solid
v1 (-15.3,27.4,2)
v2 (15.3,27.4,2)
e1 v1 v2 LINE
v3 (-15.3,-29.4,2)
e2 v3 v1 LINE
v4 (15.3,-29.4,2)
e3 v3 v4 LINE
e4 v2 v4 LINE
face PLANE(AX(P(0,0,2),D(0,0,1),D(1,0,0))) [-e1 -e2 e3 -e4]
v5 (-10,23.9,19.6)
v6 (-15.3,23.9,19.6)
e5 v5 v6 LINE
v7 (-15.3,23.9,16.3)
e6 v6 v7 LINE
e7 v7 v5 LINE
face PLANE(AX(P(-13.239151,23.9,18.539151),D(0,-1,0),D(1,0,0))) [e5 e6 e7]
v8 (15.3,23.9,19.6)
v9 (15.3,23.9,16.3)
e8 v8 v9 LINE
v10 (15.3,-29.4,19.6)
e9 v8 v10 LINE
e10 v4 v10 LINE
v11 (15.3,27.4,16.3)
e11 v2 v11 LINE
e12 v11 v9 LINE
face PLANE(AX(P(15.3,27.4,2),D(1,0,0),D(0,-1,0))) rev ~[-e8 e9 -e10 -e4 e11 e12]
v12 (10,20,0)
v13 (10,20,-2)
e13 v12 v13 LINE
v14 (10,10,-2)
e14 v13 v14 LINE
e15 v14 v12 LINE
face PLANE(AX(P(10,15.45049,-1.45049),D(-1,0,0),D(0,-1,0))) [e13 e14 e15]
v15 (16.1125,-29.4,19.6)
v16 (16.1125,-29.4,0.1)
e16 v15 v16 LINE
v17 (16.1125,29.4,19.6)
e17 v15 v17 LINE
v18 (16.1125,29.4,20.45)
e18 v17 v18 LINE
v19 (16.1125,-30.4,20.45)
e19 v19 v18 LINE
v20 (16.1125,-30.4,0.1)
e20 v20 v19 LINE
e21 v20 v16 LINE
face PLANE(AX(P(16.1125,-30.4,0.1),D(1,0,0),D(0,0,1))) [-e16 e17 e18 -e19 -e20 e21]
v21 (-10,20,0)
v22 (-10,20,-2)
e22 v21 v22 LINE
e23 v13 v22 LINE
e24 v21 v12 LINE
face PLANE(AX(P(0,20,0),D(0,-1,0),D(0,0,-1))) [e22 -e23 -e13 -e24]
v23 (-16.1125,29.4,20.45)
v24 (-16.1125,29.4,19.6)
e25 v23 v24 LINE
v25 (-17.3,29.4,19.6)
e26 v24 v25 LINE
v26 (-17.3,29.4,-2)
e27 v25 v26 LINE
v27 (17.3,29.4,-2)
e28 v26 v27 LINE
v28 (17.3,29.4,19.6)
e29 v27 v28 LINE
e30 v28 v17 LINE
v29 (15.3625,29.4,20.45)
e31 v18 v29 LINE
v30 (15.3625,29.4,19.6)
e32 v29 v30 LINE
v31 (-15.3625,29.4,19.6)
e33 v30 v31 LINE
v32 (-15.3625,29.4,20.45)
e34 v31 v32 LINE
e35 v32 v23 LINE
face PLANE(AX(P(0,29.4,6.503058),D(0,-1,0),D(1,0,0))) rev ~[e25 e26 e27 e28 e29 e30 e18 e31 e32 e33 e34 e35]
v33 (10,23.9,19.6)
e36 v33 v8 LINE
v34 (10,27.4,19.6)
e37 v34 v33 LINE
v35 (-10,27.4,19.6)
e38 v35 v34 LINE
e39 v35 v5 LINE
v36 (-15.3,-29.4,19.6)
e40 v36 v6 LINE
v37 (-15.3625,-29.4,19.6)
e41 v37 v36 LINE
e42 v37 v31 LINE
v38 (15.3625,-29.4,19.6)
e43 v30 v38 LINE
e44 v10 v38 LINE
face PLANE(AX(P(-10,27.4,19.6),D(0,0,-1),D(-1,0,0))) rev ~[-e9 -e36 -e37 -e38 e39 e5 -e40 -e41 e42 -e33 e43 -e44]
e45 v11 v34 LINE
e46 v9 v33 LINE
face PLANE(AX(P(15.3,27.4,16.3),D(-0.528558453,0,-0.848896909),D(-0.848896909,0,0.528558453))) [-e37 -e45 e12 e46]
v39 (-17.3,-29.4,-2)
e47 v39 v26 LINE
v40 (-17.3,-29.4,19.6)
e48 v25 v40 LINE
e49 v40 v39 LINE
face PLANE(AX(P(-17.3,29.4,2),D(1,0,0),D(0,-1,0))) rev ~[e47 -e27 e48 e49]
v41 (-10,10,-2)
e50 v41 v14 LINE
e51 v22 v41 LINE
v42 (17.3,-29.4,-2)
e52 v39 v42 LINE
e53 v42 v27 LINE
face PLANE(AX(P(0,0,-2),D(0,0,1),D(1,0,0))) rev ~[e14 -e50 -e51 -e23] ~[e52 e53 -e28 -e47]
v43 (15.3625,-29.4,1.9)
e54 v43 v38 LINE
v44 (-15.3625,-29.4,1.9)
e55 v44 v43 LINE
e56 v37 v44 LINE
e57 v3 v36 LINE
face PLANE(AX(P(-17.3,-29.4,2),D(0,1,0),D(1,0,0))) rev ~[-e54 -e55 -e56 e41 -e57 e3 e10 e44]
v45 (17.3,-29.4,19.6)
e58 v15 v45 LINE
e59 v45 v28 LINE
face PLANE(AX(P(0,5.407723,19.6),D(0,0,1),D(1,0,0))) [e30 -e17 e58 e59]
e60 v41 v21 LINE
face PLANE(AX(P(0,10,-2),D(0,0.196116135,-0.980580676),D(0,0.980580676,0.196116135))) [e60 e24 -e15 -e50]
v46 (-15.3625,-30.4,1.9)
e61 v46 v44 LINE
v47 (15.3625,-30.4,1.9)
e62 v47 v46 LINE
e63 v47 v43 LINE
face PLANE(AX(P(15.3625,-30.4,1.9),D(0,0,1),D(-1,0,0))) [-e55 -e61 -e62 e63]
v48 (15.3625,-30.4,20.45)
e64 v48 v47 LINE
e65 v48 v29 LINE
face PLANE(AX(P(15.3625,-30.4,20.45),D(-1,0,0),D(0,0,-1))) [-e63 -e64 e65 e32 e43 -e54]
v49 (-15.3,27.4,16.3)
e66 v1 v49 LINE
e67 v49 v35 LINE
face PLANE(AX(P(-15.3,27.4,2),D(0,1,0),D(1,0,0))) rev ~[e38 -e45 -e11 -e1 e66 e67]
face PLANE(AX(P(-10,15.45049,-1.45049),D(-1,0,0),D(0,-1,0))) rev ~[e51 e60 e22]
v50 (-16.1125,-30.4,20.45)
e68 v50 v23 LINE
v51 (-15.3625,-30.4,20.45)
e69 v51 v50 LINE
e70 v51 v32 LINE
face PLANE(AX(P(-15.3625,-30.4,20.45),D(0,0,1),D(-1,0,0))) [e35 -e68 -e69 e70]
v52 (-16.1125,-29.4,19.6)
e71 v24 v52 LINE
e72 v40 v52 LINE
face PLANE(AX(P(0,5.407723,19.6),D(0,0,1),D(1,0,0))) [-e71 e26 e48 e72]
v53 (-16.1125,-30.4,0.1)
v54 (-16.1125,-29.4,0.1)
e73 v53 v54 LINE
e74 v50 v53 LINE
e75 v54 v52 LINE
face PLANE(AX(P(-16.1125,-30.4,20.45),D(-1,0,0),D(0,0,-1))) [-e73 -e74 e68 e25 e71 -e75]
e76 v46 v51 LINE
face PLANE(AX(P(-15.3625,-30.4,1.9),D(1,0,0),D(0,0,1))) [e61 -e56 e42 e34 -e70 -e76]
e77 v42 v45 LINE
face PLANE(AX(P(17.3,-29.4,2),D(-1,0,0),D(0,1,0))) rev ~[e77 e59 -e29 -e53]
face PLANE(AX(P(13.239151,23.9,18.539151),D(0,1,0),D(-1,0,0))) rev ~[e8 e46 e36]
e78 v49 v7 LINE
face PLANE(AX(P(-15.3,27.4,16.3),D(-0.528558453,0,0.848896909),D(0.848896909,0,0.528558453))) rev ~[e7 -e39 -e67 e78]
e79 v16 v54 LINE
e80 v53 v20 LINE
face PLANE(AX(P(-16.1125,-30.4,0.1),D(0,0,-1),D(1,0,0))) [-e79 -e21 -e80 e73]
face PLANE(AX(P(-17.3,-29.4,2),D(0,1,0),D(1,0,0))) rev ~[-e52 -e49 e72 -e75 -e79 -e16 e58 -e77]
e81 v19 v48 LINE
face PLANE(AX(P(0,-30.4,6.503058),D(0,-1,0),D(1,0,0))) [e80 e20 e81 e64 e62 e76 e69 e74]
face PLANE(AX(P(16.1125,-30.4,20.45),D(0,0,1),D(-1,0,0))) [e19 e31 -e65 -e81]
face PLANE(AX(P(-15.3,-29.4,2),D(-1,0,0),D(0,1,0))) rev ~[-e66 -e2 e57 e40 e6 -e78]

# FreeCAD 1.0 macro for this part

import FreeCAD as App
import Part
import Sketcher

V = App.Vector


def add_polygon(sketch, points):
    """Adds a closed chain of lines whose ends are joined by coincident constraints."""
    first, n = sketch.GeometryCount, len(points)
    for a, b in zip(points, points[1:] + points[:1]):
        sketch.addGeometry(Part.LineSegment(App.Vector(*a, 0), App.Vector(*b, 0)), False)
    for i in range(n):
        sketch.addConstraint(Sketcher.Constraint("Coincident", first + i, 2, first + (i + 1) % n, 1))

doc = App.newDocument("Part")
body = doc.addObject("PartDesign::Body", "Body")

sketch1 = body.newObject("Sketcher::SketchObject", "Sketch")
sketch1.AttachmentSupport = (doc.getObject("XY_Plane"), [""])
sketch1.MapMode = "FlatFace"
sketch1.AttachmentOffset = App.Placement(V(0, 0, -2), App.Rotation())
add_polygon(sketch1, [(-17.3, 29.4), (-17.3, -29.4), (17.3, -29.4), (17.3, 29.4)])
sketch1.addConstraint([
    Sketcher.Constraint("Vertical", 0),
    Sketcher.Constraint("Horizontal", 1),
    Sketcher.Constraint("Vertical", 2),
    Sketcher.Constraint("Horizontal", 3),
    Sketcher.Constraint("Symmetric", 0, 2, 2, 2, -1, 1),
    Sketcher.Constraint("DistanceX", 1, 1, 1, 2, 34.6),
    Sketcher.Constraint("DistanceY", 0, 2, 0, 1, 58.8),
])
pad1 = body.newObject("PartDesign::Pad", "Pad")
pad1.Profile = sketch1
pad1.Length = 4

sketch2 = body.newObject("Sketcher::SketchObject", "Sketch001")
sketch2.AttachmentSupport = (doc.getObject("XY_Plane"), [""])
sketch2.MapMode = "FlatFace"
sketch2.AttachmentOffset = App.Placement(V(0, 0, 2), App.Rotation())
add_polygon(sketch2, [(-15.3, -29.4), (-15.3, 27.4), (15.3, 27.4), (15.3, -29.4), (17.3, -29.4), (17.3, 29.4), (-17.3, 29.4), (-17.3, -29.4)])
sketch2.addConstraint([
    Sketcher.Constraint("Vertical", 0),
    Sketcher.Constraint("Horizontal", 1),
    Sketcher.Constraint("Vertical", 2),
    Sketcher.Constraint("Horizontal", 3),
    Sketcher.Constraint("Vertical", 4),
    Sketcher.Constraint("Horizontal", 5),
    Sketcher.Constraint("Vertical", 6),
    Sketcher.Constraint("Horizontal", 7),
    Sketcher.Constraint("Symmetric", 3, 2, 5, 2, -1, 1),
    Sketcher.Constraint("Symmetric", 2, 2, 7, 2, -2),
    Sketcher.Constraint("DistanceX", 3, 1, 3, 2, 2.0),
    Sketcher.Constraint("DistanceX", 1, 1, 1, 2, 30.6),
    Sketcher.Constraint("DistanceY", 0, 1, 0, 2, 56.8),
    Sketcher.Constraint("DistanceY", 4, 1, 4, 2, 58.8),
])
pad2 = body.newObject("PartDesign::Pad", "Pad001")
pad2.Profile = sketch2
pad2.Length = 17.6

sketch3 = body.newObject("Sketcher::SketchObject", "Sketch002")
sketch3.AttachmentSupport = (doc.getObject("XZ_Plane"), [""])
sketch3.MapMode = "FlatFace"
sketch3.AttachmentOffset = App.Placement(V(0, 0, 30.4), App.Rotation())
add_polygon(sketch3, [(-15.3625, 20.45), (-16.1125, 20.45), (-16.1125, 0.1), (16.1125, 0.1), (16.1125, 20.45), (15.3625, 20.45), (15.3625, 1.9), (-15.3625, 1.9)])
sketch3.addConstraint([
    Sketcher.Constraint("Horizontal", 0),
    Sketcher.Constraint("Vertical", 1),
    Sketcher.Constraint("Horizontal", 2),
    Sketcher.Constraint("Vertical", 3),
    Sketcher.Constraint("Horizontal", 4),
    Sketcher.Constraint("Vertical", 5),
    Sketcher.Constraint("Horizontal", 6),
    Sketcher.Constraint("Vertical", 7),
    Sketcher.Constraint("Symmetric", 0, 2, 3, 2, -2),
    Sketcher.Constraint("Equal", 0, 4),
    Sketcher.Constraint("DistanceX", 0, 2, 0, 1, 0.75),
    Sketcher.Constraint("DistanceY", 1, 2, 1, 1, 20.35),
    Sketcher.Constraint("DistanceY", 5, 2, 5, 1, 18.55),
    Sketcher.Constraint("DistanceY", -1, 1, 1, 2, 0.1),
    Sketcher.Constraint("DistanceX", 2, 1, 2, 2, 32.225),
])
pad3 = body.newObject("PartDesign::Pad", "Pad002")
pad3.Profile = sketch3
pad3.Length = 59.8
pad3.Reversed = True

sketch4 = body.newObject("Sketcher::SketchObject", "Sketch003")
sketch4.AttachmentSupport = (doc.getObject("XZ_Plane"), [""])
sketch4.MapMode = "FlatFace"
sketch4.AttachmentOffset = App.Placement(V(0, 0, -27.4), App.Rotation())
add_polygon(sketch4, [(-15.3, 19.6), (-15.3, 16.3), (-10, 19.6)])
add_polygon(sketch4, [(15.3, 16.3), (15.3, 19.6), (10, 19.6)])
sketch4.addConstraint([
    Sketcher.Constraint("Vertical", 0),
    Sketcher.Constraint("Horizontal", 2),
    Sketcher.Constraint("Vertical", 3),
    Sketcher.Constraint("Horizontal", 4),
    Sketcher.Constraint("Symmetric", 2, 2, 3, 2, -2),
    Sketcher.Constraint("Horizontal", 0, 2, 5, 2),
    Sketcher.Constraint("Equal", 2, 4),
    Sketcher.Constraint("DistanceX", 2, 2, 2, 1, 5.3),
    Sketcher.Constraint("DistanceY", 0, 2, 0, 1, 3.3),
    Sketcher.Constraint("DistanceX", 1, 2, -1, 1, 10.0),
    Sketcher.Constraint("DistanceY", -1, 1, 0, 2, 16.3),
])
pad4 = body.newObject("PartDesign::Pad", "Pad003")
pad4.Profile = sketch4
pad4.Length = 3.5

sketch5 = body.newObject("Sketcher::SketchObject", "Sketch004")
sketch5.AttachmentSupport = (doc.getObject("YZ_Plane"), [""])
sketch5.MapMode = "FlatFace"
add_polygon(sketch5, [(20, -2), (20, 0), (10, -2)])
sketch5.addConstraint([
    Sketcher.Constraint("Vertical", 0),
    Sketcher.Constraint("Horizontal", 2),
    Sketcher.Constraint("PointOnObject", 0, 2, -1),
    Sketcher.Constraint("DistanceX", 2, 1, 2, 2, 10.0),
    Sketcher.Constraint("DistanceY", 0, 1, 0, 2, 2.0),
    Sketcher.Constraint("DistanceX", -1, 1, 0, 2, 20.0),
])
pocket1 = body.newObject("PartDesign::Pocket", "Pocket")
pocket1.Profile = sketch5
pocket1.Length = 20
pocket1.Midplane = True

doc.recompute()
